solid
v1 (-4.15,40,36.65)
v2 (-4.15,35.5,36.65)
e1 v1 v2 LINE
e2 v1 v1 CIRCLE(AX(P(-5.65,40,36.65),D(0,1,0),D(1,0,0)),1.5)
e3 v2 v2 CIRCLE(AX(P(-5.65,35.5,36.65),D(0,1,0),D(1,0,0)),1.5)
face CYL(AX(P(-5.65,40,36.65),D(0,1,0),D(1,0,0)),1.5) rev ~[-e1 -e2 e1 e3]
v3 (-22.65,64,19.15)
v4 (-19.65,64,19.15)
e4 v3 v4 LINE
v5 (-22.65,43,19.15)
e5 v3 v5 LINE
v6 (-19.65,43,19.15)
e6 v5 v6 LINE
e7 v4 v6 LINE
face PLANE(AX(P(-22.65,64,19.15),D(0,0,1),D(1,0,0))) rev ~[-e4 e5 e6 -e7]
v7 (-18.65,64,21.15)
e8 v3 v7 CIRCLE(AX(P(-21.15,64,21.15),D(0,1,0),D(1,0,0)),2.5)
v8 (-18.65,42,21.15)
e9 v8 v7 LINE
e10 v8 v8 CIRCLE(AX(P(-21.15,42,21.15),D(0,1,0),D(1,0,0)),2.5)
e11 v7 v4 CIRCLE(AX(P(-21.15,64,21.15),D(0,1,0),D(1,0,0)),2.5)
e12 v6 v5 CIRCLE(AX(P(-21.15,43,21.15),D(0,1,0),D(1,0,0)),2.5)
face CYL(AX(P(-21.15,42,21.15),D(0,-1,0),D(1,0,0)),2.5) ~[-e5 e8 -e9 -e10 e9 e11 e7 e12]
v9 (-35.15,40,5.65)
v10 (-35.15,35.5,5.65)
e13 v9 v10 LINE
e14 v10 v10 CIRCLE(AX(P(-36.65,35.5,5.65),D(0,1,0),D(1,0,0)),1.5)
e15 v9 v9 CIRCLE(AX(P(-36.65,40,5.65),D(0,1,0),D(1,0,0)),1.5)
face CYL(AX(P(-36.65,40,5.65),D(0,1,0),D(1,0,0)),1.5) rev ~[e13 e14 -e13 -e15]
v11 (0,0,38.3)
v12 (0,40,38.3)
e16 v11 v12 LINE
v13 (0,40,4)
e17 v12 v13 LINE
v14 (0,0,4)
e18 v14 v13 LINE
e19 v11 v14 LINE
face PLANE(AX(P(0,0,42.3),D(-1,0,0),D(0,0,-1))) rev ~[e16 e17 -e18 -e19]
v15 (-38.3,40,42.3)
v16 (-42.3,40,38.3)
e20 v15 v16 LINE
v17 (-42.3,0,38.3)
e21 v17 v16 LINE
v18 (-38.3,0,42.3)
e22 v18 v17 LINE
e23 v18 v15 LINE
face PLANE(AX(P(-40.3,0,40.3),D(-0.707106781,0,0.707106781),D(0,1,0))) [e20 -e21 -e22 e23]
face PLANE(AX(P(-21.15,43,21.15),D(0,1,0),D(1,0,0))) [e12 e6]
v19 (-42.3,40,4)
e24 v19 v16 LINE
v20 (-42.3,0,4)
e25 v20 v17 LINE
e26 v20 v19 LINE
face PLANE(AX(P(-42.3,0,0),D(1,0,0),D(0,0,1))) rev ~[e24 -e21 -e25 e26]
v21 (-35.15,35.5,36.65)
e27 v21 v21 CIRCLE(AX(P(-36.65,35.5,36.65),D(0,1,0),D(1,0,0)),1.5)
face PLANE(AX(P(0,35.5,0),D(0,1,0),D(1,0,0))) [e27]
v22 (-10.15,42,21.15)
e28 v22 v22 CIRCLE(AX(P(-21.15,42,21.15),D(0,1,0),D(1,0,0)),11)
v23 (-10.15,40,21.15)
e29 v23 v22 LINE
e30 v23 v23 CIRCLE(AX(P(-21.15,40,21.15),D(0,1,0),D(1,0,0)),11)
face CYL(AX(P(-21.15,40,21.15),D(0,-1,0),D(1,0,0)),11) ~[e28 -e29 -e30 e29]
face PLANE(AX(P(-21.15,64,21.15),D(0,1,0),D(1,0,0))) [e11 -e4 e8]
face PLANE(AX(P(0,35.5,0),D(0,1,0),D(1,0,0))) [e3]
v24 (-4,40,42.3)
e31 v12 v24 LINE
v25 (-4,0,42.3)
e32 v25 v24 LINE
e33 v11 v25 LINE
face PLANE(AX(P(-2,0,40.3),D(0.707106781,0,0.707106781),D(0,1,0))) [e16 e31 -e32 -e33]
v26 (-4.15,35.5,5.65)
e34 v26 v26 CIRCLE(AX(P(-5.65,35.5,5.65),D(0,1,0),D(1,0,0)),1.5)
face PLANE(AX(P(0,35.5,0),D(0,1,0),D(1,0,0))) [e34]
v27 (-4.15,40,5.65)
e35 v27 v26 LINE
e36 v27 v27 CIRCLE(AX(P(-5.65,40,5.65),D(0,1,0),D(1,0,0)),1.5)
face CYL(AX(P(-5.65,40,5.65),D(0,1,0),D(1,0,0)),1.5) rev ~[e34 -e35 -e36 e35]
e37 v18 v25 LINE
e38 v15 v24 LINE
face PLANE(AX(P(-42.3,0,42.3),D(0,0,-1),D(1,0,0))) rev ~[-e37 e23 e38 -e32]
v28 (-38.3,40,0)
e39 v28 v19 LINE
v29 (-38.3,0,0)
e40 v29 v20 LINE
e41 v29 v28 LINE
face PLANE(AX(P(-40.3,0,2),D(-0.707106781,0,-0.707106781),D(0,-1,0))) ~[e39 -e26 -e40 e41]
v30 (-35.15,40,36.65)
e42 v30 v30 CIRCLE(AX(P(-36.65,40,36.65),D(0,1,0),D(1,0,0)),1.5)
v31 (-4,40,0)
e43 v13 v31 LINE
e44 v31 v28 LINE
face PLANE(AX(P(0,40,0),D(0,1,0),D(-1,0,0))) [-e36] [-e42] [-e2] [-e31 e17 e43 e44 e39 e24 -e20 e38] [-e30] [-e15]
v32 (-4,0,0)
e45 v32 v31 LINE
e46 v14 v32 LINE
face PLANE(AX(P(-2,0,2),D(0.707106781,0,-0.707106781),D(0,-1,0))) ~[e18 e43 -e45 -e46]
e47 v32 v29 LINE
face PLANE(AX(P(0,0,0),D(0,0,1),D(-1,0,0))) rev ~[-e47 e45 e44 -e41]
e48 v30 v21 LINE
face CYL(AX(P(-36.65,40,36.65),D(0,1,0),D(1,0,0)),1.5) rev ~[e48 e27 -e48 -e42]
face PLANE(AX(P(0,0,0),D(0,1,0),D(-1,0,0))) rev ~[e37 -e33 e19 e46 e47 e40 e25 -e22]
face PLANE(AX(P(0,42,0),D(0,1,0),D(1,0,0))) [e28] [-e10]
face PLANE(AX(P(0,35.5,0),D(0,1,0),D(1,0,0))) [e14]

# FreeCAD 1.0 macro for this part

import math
import FreeCAD as App
import Part
import Sketcher
from FreeCAD import Vector


def edges_at(feature, points):
    """Names of the edges that pass closest to the given points."""
    edges = feature.Shape.Edges
    near = lambda p: min(range(len(edges)), key=lambda i: edges[i].distToShape(Part.Vertex(*p))[0])
    return sorted({f"Edge{near(p) + 1}" for p in points})


def add_polygon(sketch, points):
    """Adds a closed chain of lines whose ends are joined by coincident constraints."""
    first, n = sketch.GeometryCount, len(points)
    for a, b in zip(points, points[1:] + points[:1]):
        sketch.addGeometry(Part.LineSegment(App.Vector(*a, 0), App.Vector(*b, 0)), False)
    for i in range(n):
        sketch.addConstraint(Sketcher.Constraint("Coincident", first + i, 2, first + (i + 1) % n, 1))

doc = App.newDocument("Part")
body = doc.addObject("PartDesign::Body", "Body")

# Sketch on XZ plane
sketch1 = body.newObject("Sketcher::SketchObject", "Sketch")
sketch1.AttachmentSupport = (doc.getObject("XZ_Plane"), [""])
sketch1.MapMode = "FlatFace"
add_polygon(sketch1, [(0, 42), (0, 0), (-42, 0), (-42, 42)])  # lines 0-3
sketch1.addConstraint([
    Sketcher.Constraint("Vertical", 0),
    Sketcher.Constraint("Horizontal", 1),
    Sketcher.Constraint("Vertical", 2),
    Sketcher.Constraint("Horizontal", 3),
    Sketcher.Constraint("Coincident", 0, 2, -1, 1),
    Sketcher.Constraint("Equal", 3, 0),
    Sketcher.Constraint("DistanceX", 1, 2, 1, 1, 42.3),
])
pad1 = body.newObject("PartDesign::Pad", "Pad")
pad1.Profile = sketch1
pad1.Length = 40
pad1.Reversed = True

# Sketch on XZ plane
sketch2 = body.newObject("Sketcher::SketchObject", "Sketch001")
sketch2.AttachmentSupport = (doc.getObject("XZ_Plane"), [""])
sketch2.MapMode = "FlatFace"
sketch2.AttachmentOffset = App.Placement(Vector(0, 0, -40), App.Rotation())
sketch2.addGeometry(Part.Circle(Vector(-21, 21, 0), Vector(0, 0, 1), 11), False)
sketch2.addConstraint([
    Sketcher.Constraint("Diameter", 0, 22.0),
    Sketcher.Constraint("DistanceX", 0, 3, -1, 1, 21.15),
    Sketcher.Constraint("DistanceY", -1, 1, 0, 3, 21.15),
])
pad2 = body.newObject("PartDesign::Pad", "Pad001")
pad2.Profile = sketch2
pad2.Length = 2
pad2.Reversed = True

# Sketch on XZ plane
sketch3 = body.newObject("Sketcher::SketchObject", "Sketch002")
sketch3.AttachmentSupport = (doc.getObject("XZ_Plane"), [""])
sketch3.MapMode = "FlatFace"
sketch3.AttachmentOffset = App.Placement(Vector(0, 0, -42), App.Rotation())
sketch3.addGeometry(Part.Circle(Vector(-21.1, 21.1, 0), Vector(0, 0, 1), 2.5), False)
sketch3.addConstraint([
    Sketcher.Constraint("Diameter", 0, 5.0),
    Sketcher.Constraint("DistanceX", 0, 3, -1, 1, 21.15),
    Sketcher.Constraint("DistanceY", -1, 1, 0, 3, 21.15),
])
pad3 = body.newObject("PartDesign::Pad", "Pad002")
pad3.Profile = sketch3
pad3.Length = 22
pad3.Reversed = True

# Sketch on XZ plane
sketch4 = body.newObject("Sketcher::SketchObject", "Sketch003")
sketch4.AttachmentSupport = (doc.getObject("XZ_Plane"), [""])
sketch4.MapMode = "FlatFace"
sketch4.AttachmentOffset = App.Placement(Vector(0, 0, -64), App.Rotation())
sketch4.addGeometry([
    Part.LineSegment(Vector(-22.6, 19.1, 0), Vector(-19.6, 19.1, 0)),
    Part.ArcOfCircle(Part.Circle(Vector(-21.1, 21.1, 0), Vector(0, 0, 1), 2.5), math.radians(-127), math.radians(-53)),
], False)
sketch4.addConstraint([
    Sketcher.Constraint("Coincident", 0, 1, 1, 1),
    Sketcher.Constraint("Coincident", 1, 2, 0, 2),
    Sketcher.Constraint("Horizontal", 0),
    Sketcher.Constraint("DistanceY", 0, 1, 1, 3, 2.0),
    Sketcher.Constraint("Radius", 1, 2.5),
    Sketcher.Constraint("DistanceX", 1, 3, -1, 1, 21.15),
    Sketcher.Constraint("DistanceY", -1, 1, 1, 3, 21.15),
])
pocket1 = body.newObject("PartDesign::Pocket", "Pocket")
pocket1.Profile = sketch4
pocket1.Length = 21
pocket1.Reversed = True

# Sketch on XZ plane
sketch5 = body.newObject("Sketcher::SketchObject", "Sketch004")
sketch5.AttachmentSupport = (doc.getObject("XZ_Plane"), [""])
sketch5.MapMode = "FlatFace"
sketch5.AttachmentOffset = App.Placement(Vector(0, 0, -40), App.Rotation())
sketch5.addGeometry([
    Part.Circle(Vector(-36.6, 5.7, 0), Vector(0, 0, 1), 1.5),
    Part.Circle(Vector(-5.7, 5.7, 0), Vector(0, 0, 1), 1.5),
    Part.Circle(Vector(-5.7, 36.6, 0), Vector(0, 0, 1), 1.5),
    Part.Circle(Vector(-36.6, 36.6, 0), Vector(0, 0, 1), 1.5),
], False)
sketch5.addConstraint([
    Sketcher.Constraint("Equal", 0, 1),
    Sketcher.Constraint("Equal", 1, 2),
    Sketcher.Constraint("Equal", 2, 3),
    Sketcher.Constraint("Horizontal", 0, 3, 1, 3),
    Sketcher.Constraint("Horizontal", 2, 3, 3, 3),
    Sketcher.Constraint("Vertical", 1, 3, 2, 3),
    Sketcher.Constraint("Vertical", 0, 3, 3, 3),
    Sketcher.Constraint("Diameter", 0, 3.0),
    Sketcher.Constraint("DistanceX", 0, 3, 1, 3, 31.0),
    Sketcher.Constraint("DistanceY", 1, 3, 2, 3, 31.0),
    Sketcher.Constraint("DistanceY", -1, 1, 0, 3, 5.65),
    Sketcher.Constraint("DistanceX", 1, 3, -1, 1, 5.65),
])
pocket2 = body.newObject("PartDesign::Pocket", "Pocket001")
pocket2.Profile = sketch5
pocket2.Length = 4.5
pocket2.Reversed = True
doc.recompute()

chamfer = body.newObject("PartDesign::Chamfer", "Chamfer")
chamfer.Base = (pocket2, edges_at(pocket2, [
    (-42.3, 20, 0),
    (-42.3, 20, 42.3),
    (0, 20, 0),
    (0, 20, 42.3),
]))
chamfer.Size = 4

doc.recompute()
